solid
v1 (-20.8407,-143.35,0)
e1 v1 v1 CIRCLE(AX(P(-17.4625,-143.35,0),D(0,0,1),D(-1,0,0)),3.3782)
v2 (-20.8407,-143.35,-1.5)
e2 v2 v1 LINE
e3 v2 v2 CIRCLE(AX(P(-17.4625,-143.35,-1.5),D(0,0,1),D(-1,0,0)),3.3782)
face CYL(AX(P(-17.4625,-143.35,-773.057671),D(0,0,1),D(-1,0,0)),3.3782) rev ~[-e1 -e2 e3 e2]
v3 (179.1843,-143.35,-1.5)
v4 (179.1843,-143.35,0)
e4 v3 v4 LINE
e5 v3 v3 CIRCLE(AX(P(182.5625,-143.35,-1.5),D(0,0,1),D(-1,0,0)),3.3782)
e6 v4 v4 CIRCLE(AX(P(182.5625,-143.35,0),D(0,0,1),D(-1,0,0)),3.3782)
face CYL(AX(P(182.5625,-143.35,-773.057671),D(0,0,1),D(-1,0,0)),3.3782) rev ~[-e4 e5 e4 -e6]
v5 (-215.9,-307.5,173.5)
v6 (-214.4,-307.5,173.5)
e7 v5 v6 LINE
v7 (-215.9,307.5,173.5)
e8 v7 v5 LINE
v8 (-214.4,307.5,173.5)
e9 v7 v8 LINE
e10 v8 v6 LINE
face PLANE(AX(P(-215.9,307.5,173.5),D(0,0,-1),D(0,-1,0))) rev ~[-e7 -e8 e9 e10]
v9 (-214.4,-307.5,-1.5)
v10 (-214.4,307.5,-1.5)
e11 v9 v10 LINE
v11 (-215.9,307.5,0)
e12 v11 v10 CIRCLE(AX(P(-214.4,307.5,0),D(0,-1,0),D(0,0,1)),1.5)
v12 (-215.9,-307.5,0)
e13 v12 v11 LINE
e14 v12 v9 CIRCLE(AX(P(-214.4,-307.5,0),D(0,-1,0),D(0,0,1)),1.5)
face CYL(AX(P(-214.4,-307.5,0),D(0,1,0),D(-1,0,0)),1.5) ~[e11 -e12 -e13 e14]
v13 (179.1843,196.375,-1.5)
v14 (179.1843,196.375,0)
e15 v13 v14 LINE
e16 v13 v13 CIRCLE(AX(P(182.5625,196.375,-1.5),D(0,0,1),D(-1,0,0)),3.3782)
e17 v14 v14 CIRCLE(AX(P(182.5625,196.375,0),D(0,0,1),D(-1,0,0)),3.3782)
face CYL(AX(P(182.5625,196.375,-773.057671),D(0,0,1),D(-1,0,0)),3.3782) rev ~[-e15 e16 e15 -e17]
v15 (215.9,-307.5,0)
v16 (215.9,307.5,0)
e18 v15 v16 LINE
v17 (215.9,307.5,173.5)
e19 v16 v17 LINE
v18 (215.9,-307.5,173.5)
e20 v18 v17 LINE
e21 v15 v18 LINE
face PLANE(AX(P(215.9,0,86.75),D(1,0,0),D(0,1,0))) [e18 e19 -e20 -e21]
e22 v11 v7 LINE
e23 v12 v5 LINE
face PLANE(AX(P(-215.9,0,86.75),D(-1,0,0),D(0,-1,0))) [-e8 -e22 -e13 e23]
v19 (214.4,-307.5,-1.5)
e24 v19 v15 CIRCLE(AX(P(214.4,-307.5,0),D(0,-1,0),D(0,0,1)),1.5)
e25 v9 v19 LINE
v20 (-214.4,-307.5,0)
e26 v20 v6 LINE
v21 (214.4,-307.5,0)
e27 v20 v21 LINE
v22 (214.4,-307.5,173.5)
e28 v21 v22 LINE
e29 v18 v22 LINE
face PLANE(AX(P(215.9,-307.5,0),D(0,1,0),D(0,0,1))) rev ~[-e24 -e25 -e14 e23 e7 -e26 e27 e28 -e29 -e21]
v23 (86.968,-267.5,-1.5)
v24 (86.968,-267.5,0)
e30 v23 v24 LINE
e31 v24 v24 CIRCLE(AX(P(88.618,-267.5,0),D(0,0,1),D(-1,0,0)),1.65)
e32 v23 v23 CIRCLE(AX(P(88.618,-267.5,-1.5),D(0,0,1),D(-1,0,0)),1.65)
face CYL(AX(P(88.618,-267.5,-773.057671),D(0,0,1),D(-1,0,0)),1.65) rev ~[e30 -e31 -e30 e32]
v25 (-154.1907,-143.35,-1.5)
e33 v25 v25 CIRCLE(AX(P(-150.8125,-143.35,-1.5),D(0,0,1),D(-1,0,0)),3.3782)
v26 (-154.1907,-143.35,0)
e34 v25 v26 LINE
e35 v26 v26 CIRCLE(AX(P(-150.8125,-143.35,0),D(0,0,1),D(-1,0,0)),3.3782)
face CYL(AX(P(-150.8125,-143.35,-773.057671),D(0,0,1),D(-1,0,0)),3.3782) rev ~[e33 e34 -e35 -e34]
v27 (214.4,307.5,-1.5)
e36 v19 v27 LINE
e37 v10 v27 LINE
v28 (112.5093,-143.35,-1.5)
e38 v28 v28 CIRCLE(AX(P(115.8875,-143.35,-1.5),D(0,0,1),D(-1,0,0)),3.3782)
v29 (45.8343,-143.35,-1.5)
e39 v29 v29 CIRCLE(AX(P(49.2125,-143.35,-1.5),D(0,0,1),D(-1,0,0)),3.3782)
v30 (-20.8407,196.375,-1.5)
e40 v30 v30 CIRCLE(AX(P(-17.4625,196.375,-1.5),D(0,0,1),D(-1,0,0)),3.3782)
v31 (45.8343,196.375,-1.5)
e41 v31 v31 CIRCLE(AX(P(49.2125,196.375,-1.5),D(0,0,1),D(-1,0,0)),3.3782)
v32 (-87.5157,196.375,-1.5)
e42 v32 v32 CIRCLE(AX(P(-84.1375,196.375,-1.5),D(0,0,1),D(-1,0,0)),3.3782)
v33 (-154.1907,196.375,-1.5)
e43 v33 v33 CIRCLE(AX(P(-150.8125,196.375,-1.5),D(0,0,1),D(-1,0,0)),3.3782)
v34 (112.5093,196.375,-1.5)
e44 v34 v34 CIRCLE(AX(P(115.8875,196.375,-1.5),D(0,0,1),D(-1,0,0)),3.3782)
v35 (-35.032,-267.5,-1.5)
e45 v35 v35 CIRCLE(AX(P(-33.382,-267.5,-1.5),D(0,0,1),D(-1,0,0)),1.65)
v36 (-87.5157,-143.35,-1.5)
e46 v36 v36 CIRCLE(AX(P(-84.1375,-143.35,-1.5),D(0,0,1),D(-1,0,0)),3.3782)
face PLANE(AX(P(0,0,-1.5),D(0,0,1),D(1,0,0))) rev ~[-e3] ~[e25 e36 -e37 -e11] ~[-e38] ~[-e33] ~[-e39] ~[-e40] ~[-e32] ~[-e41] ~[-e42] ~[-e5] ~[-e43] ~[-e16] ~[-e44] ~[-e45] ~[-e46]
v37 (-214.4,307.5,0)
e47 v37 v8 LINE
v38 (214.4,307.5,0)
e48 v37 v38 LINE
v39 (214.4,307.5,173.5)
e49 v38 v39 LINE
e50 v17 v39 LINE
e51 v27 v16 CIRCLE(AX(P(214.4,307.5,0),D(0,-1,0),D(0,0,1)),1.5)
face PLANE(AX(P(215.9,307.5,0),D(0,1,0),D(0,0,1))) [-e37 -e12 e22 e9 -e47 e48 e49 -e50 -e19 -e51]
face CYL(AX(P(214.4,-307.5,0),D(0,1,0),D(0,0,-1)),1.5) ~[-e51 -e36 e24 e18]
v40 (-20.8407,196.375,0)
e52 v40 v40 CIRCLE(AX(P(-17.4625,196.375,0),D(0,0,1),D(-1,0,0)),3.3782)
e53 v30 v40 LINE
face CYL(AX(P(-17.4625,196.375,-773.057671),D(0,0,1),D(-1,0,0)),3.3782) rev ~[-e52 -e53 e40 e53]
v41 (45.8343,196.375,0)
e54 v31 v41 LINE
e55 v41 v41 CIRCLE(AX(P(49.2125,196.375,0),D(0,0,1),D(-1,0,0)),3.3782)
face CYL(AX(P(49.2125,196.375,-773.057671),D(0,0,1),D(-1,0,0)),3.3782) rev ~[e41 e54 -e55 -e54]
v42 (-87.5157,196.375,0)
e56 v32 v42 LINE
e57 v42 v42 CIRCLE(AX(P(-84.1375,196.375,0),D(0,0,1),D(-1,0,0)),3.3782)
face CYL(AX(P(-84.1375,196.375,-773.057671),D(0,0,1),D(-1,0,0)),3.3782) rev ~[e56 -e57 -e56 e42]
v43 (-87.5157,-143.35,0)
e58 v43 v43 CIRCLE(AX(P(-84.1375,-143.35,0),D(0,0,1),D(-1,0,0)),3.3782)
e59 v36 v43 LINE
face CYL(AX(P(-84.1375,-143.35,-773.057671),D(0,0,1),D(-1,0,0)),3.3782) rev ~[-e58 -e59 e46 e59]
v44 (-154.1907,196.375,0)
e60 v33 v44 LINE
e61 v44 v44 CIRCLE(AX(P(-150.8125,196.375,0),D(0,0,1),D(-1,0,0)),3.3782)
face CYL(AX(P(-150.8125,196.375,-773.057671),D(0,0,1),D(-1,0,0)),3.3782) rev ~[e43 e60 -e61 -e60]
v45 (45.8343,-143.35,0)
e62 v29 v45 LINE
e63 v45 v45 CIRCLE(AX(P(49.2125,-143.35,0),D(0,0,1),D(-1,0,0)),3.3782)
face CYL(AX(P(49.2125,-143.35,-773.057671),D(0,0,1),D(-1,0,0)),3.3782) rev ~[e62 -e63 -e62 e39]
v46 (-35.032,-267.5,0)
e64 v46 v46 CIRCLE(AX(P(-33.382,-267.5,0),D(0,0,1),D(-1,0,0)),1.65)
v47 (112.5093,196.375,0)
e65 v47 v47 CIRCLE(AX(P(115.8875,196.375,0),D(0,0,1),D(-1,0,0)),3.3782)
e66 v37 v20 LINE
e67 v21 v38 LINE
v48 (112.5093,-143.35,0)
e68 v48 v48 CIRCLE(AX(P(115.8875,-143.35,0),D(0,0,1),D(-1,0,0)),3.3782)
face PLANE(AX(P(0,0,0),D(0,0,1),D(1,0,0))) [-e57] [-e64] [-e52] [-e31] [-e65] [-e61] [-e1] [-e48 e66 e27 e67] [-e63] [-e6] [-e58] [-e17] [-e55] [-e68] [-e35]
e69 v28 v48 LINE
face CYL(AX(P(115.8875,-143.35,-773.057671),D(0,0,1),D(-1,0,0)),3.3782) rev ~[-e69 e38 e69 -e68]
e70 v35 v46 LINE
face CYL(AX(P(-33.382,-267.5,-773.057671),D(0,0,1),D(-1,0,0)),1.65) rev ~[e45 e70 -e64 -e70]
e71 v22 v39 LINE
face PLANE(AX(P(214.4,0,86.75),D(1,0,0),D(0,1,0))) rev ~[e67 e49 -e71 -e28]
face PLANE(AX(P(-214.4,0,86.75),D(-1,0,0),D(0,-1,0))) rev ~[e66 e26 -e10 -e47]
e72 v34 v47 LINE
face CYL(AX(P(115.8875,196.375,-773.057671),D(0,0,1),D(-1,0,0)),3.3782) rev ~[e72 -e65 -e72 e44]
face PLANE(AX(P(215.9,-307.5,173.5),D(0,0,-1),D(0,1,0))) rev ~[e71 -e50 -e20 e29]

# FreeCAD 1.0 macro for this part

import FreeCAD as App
import Part
import Sketcher


def edges_at(feature, points):
    """Names of the edges that pass closest to the given points."""
    edges = feature.Shape.Edges
    near = lambda p: min(range(len(edges)), key=lambda i: edges[i].distToShape(Part.Vertex(*p))[0])
    return sorted({f"Edge{near(p) + 1}" for p in points})

doc = App.newDocument("Part")
body = doc.addObject("PartDesign::Body", "Body")

# Sketch on XY plane
sketch1 = body.newObject("Sketcher::SketchObject", "Sketch")
sketch1.AttachmentSupport = (doc.getObject("XY_Plane"), [""])
sketch1.MapMode = "FlatFace"
sketch1.addGeometry(Part.LineSegment(App.Vector(-216, 308, 0), App.Vector(-216, -308, 0)), False)
sketch1.addGeometry(Part.LineSegment(App.Vector(-216, -308, 0), App.Vector(216, -308, 0)), False)
sketch1.addGeometry(Part.LineSegment(App.Vector(216, -308, 0), App.Vector(216, 308, 0)), False)
sketch1.addGeometry(Part.LineSegment(App.Vector(216, 308, 0), App.Vector(-216, 308, 0)), False)
sketch1.addConstraint(Sketcher.Constraint("Coincident", 0, 2, 1, 1))
sketch1.addConstraint(Sketcher.Constraint("Coincident", 1, 2, 2, 1))
sketch1.addConstraint(Sketcher.Constraint("Coincident", 2, 2, 3, 1))
sketch1.addConstraint(Sketcher.Constraint("Coincident", 3, 2, 0, 1))
sketch1.addConstraint(Sketcher.Constraint("Vertical", 0))
sketch1.addConstraint(Sketcher.Constraint("Horizontal", 1))
sketch1.addConstraint(Sketcher.Constraint("Vertical", 2))
sketch1.addConstraint(Sketcher.Constraint("Horizontal", 3))
sketch1.addConstraint(Sketcher.Constraint("Symmetric", 0, 2, 2, 2, -1, 1))
sketch1.addConstraint(Sketcher.Constraint("DistanceY", 0, 2, 0, 1, 615.0))
sketch1.addConstraint(Sketcher.Constraint("DistanceX", 1, 1, 1, 2, 431.8))
pad1 = body.newObject("PartDesign::Pad", "Pad")
pad1.Profile = sketch1
pad1.Length = 1.5
pad1.Reversed = True

# Sketch on YZ plane
sketch2 = body.newObject("Sketcher::SketchObject", "Sketch001")
sketch2.AttachmentSupport = (doc.getObject("YZ_Plane"), [""])
sketch2.MapMode = "FlatFace"
sketch2.AttachmentOffset = App.Placement(App.Vector(0, 0, -215.9), App.Rotation())
sketch2.addGeometry(Part.LineSegment(App.Vector(308, 174, 0), App.Vector(308, 0, 0)), False)
sketch2.addGeometry(Part.LineSegment(App.Vector(308, 0, 0), App.Vector(-308, 0, 0)), False)
sketch2.addGeometry(Part.LineSegment(App.Vector(-308, 0, 0), App.Vector(-308, 174, 0)), False)
sketch2.addGeometry(Part.LineSegment(App.Vector(-308, 174, 0), App.Vector(308, 174, 0)), False)
sketch2.addConstraint(Sketcher.Constraint("Coincident", 0, 2, 1, 1))
sketch2.addConstraint(Sketcher.Constraint("Coincident", 1, 2, 2, 1))
sketch2.addConstraint(Sketcher.Constraint("Coincident", 2, 2, 3, 1))
sketch2.addConstraint(Sketcher.Constraint("Coincident", 3, 2, 0, 1))
sketch2.addConstraint(Sketcher.Constraint("Vertical", 0))
sketch2.addConstraint(Sketcher.Constraint("Horizontal", 1))
sketch2.addConstraint(Sketcher.Constraint("Vertical", 2))
sketch2.addConstraint(Sketcher.Constraint("Horizontal", 3))
sketch2.addConstraint(Sketcher.Constraint("Symmetric", 0, 2, 1, 2, -1, 1))
sketch2.addConstraint(Sketcher.Constraint("DistanceX", 1, 2, 1, 1, 615.0))
sketch2.addConstraint(Sketcher.Constraint("DistanceY", 0, 2, 0, 1, 173.5))
pad2 = body.newObject("PartDesign::Pad", "Pad001")
pad2.Profile = sketch2
pad2.Length = 1.5

# Sketch on YZ plane
sketch3 = body.newObject("Sketcher::SketchObject", "Sketch002")
sketch3.AttachmentSupport = (doc.getObject("YZ_Plane"), [""])
sketch3.MapMode = "FlatFace"
sketch3.AttachmentOffset = App.Placement(App.Vector(0, 0, 215.9), App.Rotation())
sketch3.addGeometry(Part.LineSegment(App.Vector(-308, 174, 0), App.Vector(-308, 0, 0)), False)
sketch3.addGeometry(Part.LineSegment(App.Vector(-308, 0, 0), App.Vector(308, 0, 0)), False)
sketch3.addGeometry(Part.LineSegment(App.Vector(308, 0, 0), App.Vector(308, 174, 0)), False)
sketch3.addGeometry(Part.LineSegment(App.Vector(308, 174, 0), App.Vector(-308, 174, 0)), False)
sketch3.addConstraint(Sketcher.Constraint("Coincident", 0, 2, 1, 1))
sketch3.addConstraint(Sketcher.Constraint("Coincident", 1, 2, 2, 1))
sketch3.addConstraint(Sketcher.Constraint("Coincident", 2, 2, 3, 1))
sketch3.addConstraint(Sketcher.Constraint("Coincident", 3, 2, 0, 1))
sketch3.addConstraint(Sketcher.Constraint("Vertical", 0))
sketch3.addConstraint(Sketcher.Constraint("Horizontal", 1))
sketch3.addConstraint(Sketcher.Constraint("Vertical", 2))
sketch3.addConstraint(Sketcher.Constraint("Horizontal", 3))
sketch3.addConstraint(Sketcher.Constraint("Symmetric", 0, 2, 1, 2, -1, 1))
sketch3.addConstraint(Sketcher.Constraint("DistanceX", 1, 1, 1, 2, 615.0))
sketch3.addConstraint(Sketcher.Constraint("DistanceY", 0, 2, 0, 1, 173.5))
pad3 = body.newObject("PartDesign::Pad", "Pad002")
pad3.Profile = sketch3
pad3.Length = 1.5
pad3.Reversed = True
doc.recompute()

fillet = body.newObject("PartDesign::Fillet", "Fillet")
fillet.Base = (pad3, edges_at(pad3, [(-215.9, 0, -1.5), (215.9, 0, -1.5)]))
fillet.Radius = 1.5

# Sketch on XY plane
sketch4 = body.newObject("Sketcher::SketchObject", "Sketch003")
sketch4.AttachmentSupport = (doc.getObject("XY_Plane"), [""])
sketch4.MapMode = "FlatFace"
sketch4.AttachmentOffset = App.Placement(App.Vector(0, 0, -1.5), App.Rotation())
sketch4.addGeometry(Part.Circle(App.Vector(-84.1, -143.3, 0), App.Vector(0, 0, 1), 3.4), False)
sketch4.addGeometry(Part.Circle(App.Vector(-17.5, -143.3, 0), App.Vector(0, 0, 1), 3.4), False)
sketch4.addGeometry(Part.Circle(App.Vector(49.2, -143.3, 0), App.Vector(0, 0, 1), 3.4), False)
sketch4.addGeometry(Part.Circle(App.Vector(115.9, -143.3, 0), App.Vector(0, 0, 1), 3.4), False)
sketch4.addGeometry(Part.Circle(App.Vector(182.6, -143.3, 0), App.Vector(0, 0, 1), 3.4), False)
sketch4.addGeometry(Part.Circle(App.Vector(182.6, 196.4, 0), App.Vector(0, 0, 1), 3.4), False)
sketch4.addGeometry(Part.Circle(App.Vector(115.9, 196.4, 0), App.Vector(0, 0, 1), 3.4), False)
sketch4.addGeometry(Part.Circle(App.Vector(49.2, 196.4, 0), App.Vector(0, 0, 1), 3.4), False)
sketch4.addGeometry(Part.Circle(App.Vector(-17.5, 196.4, 0), App.Vector(0, 0, 1), 3.4), False)
sketch4.addGeometry(Part.Circle(App.Vector(-84.1, 196.4, 0), App.Vector(0, 0, 1), 3.4), False)
sketch4.addGeometry(Part.Circle(App.Vector(-150.8, 196.4, 0), App.Vector(0, 0, 1), 3.4), False)
sketch4.addGeometry(Part.Circle(App.Vector(-150.8, -143.3, 0), App.Vector(0, 0, 1), 3.4), False)
sketch4.addConstraint(Sketcher.Constraint("Equal", 0, 1))
sketch4.addConstraint(Sketcher.Constraint("Equal", 1, 2))
sketch4.addConstraint(Sketcher.Constraint("Equal", 2, 3))
sketch4.addConstraint(Sketcher.Constraint("Equal", 3, 4))
sketch4.addConstraint(Sketcher.Constraint("Equal", 4, 5))
sketch4.addConstraint(Sketcher.Constraint("Equal", 5, 6))
sketch4.addConstraint(Sketcher.Constraint("Equal", 6, 7))
sketch4.addConstraint(Sketcher.Constraint("Equal", 7, 8))
sketch4.addConstraint(Sketcher.Constraint("Equal", 8, 9))
sketch4.addConstraint(Sketcher.Constraint("Equal", 9, 10))
sketch4.addConstraint(Sketcher.Constraint("Equal", 10, 11))
sketch4.addConstraint(Sketcher.Constraint("Horizontal", 0, 3, 1, 3))
sketch4.addConstraint(Sketcher.Constraint("Horizontal", 1, 3, 2, 3))
sketch4.addConstraint(Sketcher.Constraint("Horizontal", 2, 3, 3, 3))
sketch4.addConstraint(Sketcher.Constraint("Horizontal", 3, 3, 4, 3))
sketch4.addConstraint(Sketcher.Constraint("Horizontal", 5, 3, 6, 3))
sketch4.addConstraint(Sketcher.Constraint("Horizontal", 6, 3, 7, 3))
sketch4.addConstraint(Sketcher.Constraint("Horizontal", 7, 3, 8, 3))
sketch4.addConstraint(Sketcher.Constraint("Horizontal", 8, 3, 9, 3))
sketch4.addConstraint(Sketcher.Constraint("Horizontal", 9, 3, 10, 3))
sketch4.addConstraint(Sketcher.Constraint("Horizontal", 4, 3, 11, 3))
sketch4.addConstraint(Sketcher.Constraint("Vertical", 4, 3, 5, 3))
sketch4.addConstraint(Sketcher.Constraint("Vertical", 3, 3, 6, 3))
sketch4.addConstraint(Sketcher.Constraint("Vertical", 2, 3, 7, 3))
sketch4.addConstraint(Sketcher.Constraint("Vertical", 1, 3, 8, 3))
sketch4.addConstraint(Sketcher.Constraint("Vertical", 0, 3, 9, 3))
sketch4.addConstraint(Sketcher.Constraint("Vertical", 10, 3, 11, 3))
sketch4.addConstraint(Sketcher.Constraint("Diameter", 0, 6.7564))
sketch4.addConstraint(Sketcher.Constraint("DistanceX", 0, 3, 4, 3, 266.7))
sketch4.addConstraint(Sketcher.Constraint("DistanceX", 10, 3, 6, 3, 266.7))
sketch4.addConstraint(Sketcher.Constraint("DistanceY", 0, 3, -1, 1, 143.35))
sketch4.addConstraint(Sketcher.Constraint("DistanceX", 0, 3, 2, 3, 133.35))
sketch4.addConstraint(Sketcher.Constraint("DistanceX", 1, 3, 3, 3, 133.35))
sketch4.addConstraint(Sketcher.Constraint("DistanceY", -1, 1, 5, 3, 196.375))
sketch4.addConstraint(Sketcher.Constraint("DistanceX", 0, 3, 1, 3, 66.675))
sketch4.addConstraint(Sketcher.Constraint("DistanceX", 0, 3, -1, 1, 84.1375))
doc.recompute()
hole = body.newObject("PartDesign::Hole", "Hole")
hole.Profile = sketch4
hole.ThreadType = "None"
hole.Diameter = 6.7564
hole.DepthType = "ThroughAll"
hole.Reversed = True

# Sketch on XY plane
sketch5 = body.newObject("Sketcher::SketchObject", "Sketch004")
sketch5.AttachmentSupport = (doc.getObject("XY_Plane"), [""])
sketch5.MapMode = "FlatFace"
sketch5.AttachmentOffset = App.Placement(App.Vector(0, 0, -1.5), App.Rotation())
sketch5.addGeometry(Part.Circle(App.Vector(-33.4, -267.5, 0), App.Vector(0, 0, 1), 1.6), False)
sketch5.addGeometry(Part.Circle(App.Vector(88.6, -267.5, 0), App.Vector(0, 0, 1), 1.6), False)
sketch5.addConstraint(Sketcher.Constraint("Equal", 0, 1))
sketch5.addConstraint(Sketcher.Constraint("Horizontal", 0, 3, 1, 3))
sketch5.addConstraint(Sketcher.Constraint("Diameter", 0, 3.3))
sketch5.addConstraint(Sketcher.Constraint("DistanceX", 0, 3, 1, 3, 122.0))
sketch5.addConstraint(Sketcher.Constraint("DistanceY", 0, 3, -1, 1, 267.5))
sketch5.addConstraint(Sketcher.Constraint("DistanceX", 0, 3, -1, 1, 33.382))
doc.recompute()
hole2 = body.newObject("PartDesign::Hole", "Hole001")
hole2.Profile = sketch5
hole2.ThreadType = "None"
hole2.Diameter = 3.3
hole2.DepthType = "ThroughAll"
hole2.Reversed = True

doc.recompute()
